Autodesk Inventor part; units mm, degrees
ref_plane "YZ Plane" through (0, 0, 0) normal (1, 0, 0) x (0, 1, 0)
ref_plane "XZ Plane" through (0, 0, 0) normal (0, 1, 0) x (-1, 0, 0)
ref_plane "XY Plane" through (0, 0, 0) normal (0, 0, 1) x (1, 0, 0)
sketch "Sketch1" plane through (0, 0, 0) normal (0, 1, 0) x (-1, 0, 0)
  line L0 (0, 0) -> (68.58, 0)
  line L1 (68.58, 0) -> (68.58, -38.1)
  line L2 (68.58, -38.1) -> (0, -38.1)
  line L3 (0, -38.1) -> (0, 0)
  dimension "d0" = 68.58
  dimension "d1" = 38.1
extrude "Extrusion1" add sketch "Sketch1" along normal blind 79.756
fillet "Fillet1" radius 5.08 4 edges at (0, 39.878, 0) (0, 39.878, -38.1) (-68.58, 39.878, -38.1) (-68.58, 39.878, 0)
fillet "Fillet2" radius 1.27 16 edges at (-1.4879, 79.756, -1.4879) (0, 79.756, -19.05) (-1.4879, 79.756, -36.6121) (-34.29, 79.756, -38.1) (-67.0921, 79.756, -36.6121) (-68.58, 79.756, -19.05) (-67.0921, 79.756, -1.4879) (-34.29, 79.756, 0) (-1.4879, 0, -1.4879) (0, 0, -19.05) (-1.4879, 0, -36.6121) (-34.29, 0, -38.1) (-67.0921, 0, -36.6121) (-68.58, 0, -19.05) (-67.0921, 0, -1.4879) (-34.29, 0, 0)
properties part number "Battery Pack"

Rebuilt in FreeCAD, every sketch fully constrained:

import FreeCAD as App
import Part
import Sketcher
from FreeCAD import Vector
Q = App.Units.Quantity


def edges_at(feature, points):
    """Names of the edges that pass closest to the given points."""
    edges = feature.Shape.Edges
    near = lambda p: min(range(len(edges)), key=lambda i: edges[i].distToShape(Part.Vertex(*p))[0])
    return sorted({f"Edge{near(p) + 1}" for p in points})


def add_polygon(sketch, points):
    """Adds a closed chain of lines whose ends are joined by coincident constraints."""
    first, n = sketch.GeometryCount, len(points)
    for a, b in zip(points, points[1:] + points[:1]):
        sketch.addGeometry(Part.LineSegment(App.Vector(*a, 0), App.Vector(*b, 0)), False)
    for i in range(n):
        sketch.addConstraint(Sketcher.Constraint("Coincident", first + i, 2, first + (i + 1) % n, 1))

doc = App.newDocument("Part")
body = doc.addObject("PartDesign::Body", "Body")

sketch1 = body.newObject("Sketcher::SketchObject", "Sketch")
sketch1.AttachmentSupport = (doc.getObject("XZ_Plane"), [""])
sketch1.MapMode = "FlatFace"
add_polygon(sketch1, [(-69, 0), (0, 0), (0, -38), (-69, -38)])
sketch1.addConstraint([
    Sketcher.Constraint("Horizontal", 0),
    Sketcher.Constraint("Vertical", 1),
    Sketcher.Constraint("Horizontal", 2),
    Sketcher.Constraint("Vertical", 3),
    Sketcher.Constraint("Coincident", 0, 2, -1, 1),
    Sketcher.Constraint("DistanceX", 0, 1, 0, 2, Q("2.7 in")),
    Sketcher.Constraint("DistanceY", 1, 2, 1, 1, Q("1.5 in")),
])
pad1 = body.newObject("PartDesign::Pad", "Pad")
pad1.Profile = sketch1
pad1.Length = Q("3.14 in")
pad1.Reversed = True
doc.recompute()

fillet = body.newObject("PartDesign::Fillet", "Fillet")
fillet.Base = (pad1, edges_at(pad1, [
    (0, 39.878, 0),
    (0, 39.878, -38.1),
    (-68.58, 39.878, -38.1),
    (-68.58, 39.878, 0),
]))
fillet.Radius = Q("0.2 in")
doc.recompute()

fillet2 = body.newObject("PartDesign::Fillet", "Fillet001")
fillet2.Base = (fillet, edges_at(fillet, [
    (-1.488, 79.756, -1.488),
    (0, 79.756, -19.05),
    (-1.488, 79.756, -36.612),
    (-34.29, 79.756, -38.1),
    (-67.092, 79.756, -36.612),
    (-68.58, 79.756, -19.05),
    (-67.092, 79.756, -1.488),
    (-34.29, 79.756, 0),
    (-1.488, 0, -1.488),
    (0, 0, -19.05),
    (-1.488, 0, -36.612),
    (-34.29, 0, -38.1),
    (-67.092, 0, -36.612),
    (-68.58, 0, -19.05),
    (-67.092, 0, -1.488),
    (-34.29, 0, 0),
]))
fillet2.Radius = Q("0.05 in")

doc.recompute()
